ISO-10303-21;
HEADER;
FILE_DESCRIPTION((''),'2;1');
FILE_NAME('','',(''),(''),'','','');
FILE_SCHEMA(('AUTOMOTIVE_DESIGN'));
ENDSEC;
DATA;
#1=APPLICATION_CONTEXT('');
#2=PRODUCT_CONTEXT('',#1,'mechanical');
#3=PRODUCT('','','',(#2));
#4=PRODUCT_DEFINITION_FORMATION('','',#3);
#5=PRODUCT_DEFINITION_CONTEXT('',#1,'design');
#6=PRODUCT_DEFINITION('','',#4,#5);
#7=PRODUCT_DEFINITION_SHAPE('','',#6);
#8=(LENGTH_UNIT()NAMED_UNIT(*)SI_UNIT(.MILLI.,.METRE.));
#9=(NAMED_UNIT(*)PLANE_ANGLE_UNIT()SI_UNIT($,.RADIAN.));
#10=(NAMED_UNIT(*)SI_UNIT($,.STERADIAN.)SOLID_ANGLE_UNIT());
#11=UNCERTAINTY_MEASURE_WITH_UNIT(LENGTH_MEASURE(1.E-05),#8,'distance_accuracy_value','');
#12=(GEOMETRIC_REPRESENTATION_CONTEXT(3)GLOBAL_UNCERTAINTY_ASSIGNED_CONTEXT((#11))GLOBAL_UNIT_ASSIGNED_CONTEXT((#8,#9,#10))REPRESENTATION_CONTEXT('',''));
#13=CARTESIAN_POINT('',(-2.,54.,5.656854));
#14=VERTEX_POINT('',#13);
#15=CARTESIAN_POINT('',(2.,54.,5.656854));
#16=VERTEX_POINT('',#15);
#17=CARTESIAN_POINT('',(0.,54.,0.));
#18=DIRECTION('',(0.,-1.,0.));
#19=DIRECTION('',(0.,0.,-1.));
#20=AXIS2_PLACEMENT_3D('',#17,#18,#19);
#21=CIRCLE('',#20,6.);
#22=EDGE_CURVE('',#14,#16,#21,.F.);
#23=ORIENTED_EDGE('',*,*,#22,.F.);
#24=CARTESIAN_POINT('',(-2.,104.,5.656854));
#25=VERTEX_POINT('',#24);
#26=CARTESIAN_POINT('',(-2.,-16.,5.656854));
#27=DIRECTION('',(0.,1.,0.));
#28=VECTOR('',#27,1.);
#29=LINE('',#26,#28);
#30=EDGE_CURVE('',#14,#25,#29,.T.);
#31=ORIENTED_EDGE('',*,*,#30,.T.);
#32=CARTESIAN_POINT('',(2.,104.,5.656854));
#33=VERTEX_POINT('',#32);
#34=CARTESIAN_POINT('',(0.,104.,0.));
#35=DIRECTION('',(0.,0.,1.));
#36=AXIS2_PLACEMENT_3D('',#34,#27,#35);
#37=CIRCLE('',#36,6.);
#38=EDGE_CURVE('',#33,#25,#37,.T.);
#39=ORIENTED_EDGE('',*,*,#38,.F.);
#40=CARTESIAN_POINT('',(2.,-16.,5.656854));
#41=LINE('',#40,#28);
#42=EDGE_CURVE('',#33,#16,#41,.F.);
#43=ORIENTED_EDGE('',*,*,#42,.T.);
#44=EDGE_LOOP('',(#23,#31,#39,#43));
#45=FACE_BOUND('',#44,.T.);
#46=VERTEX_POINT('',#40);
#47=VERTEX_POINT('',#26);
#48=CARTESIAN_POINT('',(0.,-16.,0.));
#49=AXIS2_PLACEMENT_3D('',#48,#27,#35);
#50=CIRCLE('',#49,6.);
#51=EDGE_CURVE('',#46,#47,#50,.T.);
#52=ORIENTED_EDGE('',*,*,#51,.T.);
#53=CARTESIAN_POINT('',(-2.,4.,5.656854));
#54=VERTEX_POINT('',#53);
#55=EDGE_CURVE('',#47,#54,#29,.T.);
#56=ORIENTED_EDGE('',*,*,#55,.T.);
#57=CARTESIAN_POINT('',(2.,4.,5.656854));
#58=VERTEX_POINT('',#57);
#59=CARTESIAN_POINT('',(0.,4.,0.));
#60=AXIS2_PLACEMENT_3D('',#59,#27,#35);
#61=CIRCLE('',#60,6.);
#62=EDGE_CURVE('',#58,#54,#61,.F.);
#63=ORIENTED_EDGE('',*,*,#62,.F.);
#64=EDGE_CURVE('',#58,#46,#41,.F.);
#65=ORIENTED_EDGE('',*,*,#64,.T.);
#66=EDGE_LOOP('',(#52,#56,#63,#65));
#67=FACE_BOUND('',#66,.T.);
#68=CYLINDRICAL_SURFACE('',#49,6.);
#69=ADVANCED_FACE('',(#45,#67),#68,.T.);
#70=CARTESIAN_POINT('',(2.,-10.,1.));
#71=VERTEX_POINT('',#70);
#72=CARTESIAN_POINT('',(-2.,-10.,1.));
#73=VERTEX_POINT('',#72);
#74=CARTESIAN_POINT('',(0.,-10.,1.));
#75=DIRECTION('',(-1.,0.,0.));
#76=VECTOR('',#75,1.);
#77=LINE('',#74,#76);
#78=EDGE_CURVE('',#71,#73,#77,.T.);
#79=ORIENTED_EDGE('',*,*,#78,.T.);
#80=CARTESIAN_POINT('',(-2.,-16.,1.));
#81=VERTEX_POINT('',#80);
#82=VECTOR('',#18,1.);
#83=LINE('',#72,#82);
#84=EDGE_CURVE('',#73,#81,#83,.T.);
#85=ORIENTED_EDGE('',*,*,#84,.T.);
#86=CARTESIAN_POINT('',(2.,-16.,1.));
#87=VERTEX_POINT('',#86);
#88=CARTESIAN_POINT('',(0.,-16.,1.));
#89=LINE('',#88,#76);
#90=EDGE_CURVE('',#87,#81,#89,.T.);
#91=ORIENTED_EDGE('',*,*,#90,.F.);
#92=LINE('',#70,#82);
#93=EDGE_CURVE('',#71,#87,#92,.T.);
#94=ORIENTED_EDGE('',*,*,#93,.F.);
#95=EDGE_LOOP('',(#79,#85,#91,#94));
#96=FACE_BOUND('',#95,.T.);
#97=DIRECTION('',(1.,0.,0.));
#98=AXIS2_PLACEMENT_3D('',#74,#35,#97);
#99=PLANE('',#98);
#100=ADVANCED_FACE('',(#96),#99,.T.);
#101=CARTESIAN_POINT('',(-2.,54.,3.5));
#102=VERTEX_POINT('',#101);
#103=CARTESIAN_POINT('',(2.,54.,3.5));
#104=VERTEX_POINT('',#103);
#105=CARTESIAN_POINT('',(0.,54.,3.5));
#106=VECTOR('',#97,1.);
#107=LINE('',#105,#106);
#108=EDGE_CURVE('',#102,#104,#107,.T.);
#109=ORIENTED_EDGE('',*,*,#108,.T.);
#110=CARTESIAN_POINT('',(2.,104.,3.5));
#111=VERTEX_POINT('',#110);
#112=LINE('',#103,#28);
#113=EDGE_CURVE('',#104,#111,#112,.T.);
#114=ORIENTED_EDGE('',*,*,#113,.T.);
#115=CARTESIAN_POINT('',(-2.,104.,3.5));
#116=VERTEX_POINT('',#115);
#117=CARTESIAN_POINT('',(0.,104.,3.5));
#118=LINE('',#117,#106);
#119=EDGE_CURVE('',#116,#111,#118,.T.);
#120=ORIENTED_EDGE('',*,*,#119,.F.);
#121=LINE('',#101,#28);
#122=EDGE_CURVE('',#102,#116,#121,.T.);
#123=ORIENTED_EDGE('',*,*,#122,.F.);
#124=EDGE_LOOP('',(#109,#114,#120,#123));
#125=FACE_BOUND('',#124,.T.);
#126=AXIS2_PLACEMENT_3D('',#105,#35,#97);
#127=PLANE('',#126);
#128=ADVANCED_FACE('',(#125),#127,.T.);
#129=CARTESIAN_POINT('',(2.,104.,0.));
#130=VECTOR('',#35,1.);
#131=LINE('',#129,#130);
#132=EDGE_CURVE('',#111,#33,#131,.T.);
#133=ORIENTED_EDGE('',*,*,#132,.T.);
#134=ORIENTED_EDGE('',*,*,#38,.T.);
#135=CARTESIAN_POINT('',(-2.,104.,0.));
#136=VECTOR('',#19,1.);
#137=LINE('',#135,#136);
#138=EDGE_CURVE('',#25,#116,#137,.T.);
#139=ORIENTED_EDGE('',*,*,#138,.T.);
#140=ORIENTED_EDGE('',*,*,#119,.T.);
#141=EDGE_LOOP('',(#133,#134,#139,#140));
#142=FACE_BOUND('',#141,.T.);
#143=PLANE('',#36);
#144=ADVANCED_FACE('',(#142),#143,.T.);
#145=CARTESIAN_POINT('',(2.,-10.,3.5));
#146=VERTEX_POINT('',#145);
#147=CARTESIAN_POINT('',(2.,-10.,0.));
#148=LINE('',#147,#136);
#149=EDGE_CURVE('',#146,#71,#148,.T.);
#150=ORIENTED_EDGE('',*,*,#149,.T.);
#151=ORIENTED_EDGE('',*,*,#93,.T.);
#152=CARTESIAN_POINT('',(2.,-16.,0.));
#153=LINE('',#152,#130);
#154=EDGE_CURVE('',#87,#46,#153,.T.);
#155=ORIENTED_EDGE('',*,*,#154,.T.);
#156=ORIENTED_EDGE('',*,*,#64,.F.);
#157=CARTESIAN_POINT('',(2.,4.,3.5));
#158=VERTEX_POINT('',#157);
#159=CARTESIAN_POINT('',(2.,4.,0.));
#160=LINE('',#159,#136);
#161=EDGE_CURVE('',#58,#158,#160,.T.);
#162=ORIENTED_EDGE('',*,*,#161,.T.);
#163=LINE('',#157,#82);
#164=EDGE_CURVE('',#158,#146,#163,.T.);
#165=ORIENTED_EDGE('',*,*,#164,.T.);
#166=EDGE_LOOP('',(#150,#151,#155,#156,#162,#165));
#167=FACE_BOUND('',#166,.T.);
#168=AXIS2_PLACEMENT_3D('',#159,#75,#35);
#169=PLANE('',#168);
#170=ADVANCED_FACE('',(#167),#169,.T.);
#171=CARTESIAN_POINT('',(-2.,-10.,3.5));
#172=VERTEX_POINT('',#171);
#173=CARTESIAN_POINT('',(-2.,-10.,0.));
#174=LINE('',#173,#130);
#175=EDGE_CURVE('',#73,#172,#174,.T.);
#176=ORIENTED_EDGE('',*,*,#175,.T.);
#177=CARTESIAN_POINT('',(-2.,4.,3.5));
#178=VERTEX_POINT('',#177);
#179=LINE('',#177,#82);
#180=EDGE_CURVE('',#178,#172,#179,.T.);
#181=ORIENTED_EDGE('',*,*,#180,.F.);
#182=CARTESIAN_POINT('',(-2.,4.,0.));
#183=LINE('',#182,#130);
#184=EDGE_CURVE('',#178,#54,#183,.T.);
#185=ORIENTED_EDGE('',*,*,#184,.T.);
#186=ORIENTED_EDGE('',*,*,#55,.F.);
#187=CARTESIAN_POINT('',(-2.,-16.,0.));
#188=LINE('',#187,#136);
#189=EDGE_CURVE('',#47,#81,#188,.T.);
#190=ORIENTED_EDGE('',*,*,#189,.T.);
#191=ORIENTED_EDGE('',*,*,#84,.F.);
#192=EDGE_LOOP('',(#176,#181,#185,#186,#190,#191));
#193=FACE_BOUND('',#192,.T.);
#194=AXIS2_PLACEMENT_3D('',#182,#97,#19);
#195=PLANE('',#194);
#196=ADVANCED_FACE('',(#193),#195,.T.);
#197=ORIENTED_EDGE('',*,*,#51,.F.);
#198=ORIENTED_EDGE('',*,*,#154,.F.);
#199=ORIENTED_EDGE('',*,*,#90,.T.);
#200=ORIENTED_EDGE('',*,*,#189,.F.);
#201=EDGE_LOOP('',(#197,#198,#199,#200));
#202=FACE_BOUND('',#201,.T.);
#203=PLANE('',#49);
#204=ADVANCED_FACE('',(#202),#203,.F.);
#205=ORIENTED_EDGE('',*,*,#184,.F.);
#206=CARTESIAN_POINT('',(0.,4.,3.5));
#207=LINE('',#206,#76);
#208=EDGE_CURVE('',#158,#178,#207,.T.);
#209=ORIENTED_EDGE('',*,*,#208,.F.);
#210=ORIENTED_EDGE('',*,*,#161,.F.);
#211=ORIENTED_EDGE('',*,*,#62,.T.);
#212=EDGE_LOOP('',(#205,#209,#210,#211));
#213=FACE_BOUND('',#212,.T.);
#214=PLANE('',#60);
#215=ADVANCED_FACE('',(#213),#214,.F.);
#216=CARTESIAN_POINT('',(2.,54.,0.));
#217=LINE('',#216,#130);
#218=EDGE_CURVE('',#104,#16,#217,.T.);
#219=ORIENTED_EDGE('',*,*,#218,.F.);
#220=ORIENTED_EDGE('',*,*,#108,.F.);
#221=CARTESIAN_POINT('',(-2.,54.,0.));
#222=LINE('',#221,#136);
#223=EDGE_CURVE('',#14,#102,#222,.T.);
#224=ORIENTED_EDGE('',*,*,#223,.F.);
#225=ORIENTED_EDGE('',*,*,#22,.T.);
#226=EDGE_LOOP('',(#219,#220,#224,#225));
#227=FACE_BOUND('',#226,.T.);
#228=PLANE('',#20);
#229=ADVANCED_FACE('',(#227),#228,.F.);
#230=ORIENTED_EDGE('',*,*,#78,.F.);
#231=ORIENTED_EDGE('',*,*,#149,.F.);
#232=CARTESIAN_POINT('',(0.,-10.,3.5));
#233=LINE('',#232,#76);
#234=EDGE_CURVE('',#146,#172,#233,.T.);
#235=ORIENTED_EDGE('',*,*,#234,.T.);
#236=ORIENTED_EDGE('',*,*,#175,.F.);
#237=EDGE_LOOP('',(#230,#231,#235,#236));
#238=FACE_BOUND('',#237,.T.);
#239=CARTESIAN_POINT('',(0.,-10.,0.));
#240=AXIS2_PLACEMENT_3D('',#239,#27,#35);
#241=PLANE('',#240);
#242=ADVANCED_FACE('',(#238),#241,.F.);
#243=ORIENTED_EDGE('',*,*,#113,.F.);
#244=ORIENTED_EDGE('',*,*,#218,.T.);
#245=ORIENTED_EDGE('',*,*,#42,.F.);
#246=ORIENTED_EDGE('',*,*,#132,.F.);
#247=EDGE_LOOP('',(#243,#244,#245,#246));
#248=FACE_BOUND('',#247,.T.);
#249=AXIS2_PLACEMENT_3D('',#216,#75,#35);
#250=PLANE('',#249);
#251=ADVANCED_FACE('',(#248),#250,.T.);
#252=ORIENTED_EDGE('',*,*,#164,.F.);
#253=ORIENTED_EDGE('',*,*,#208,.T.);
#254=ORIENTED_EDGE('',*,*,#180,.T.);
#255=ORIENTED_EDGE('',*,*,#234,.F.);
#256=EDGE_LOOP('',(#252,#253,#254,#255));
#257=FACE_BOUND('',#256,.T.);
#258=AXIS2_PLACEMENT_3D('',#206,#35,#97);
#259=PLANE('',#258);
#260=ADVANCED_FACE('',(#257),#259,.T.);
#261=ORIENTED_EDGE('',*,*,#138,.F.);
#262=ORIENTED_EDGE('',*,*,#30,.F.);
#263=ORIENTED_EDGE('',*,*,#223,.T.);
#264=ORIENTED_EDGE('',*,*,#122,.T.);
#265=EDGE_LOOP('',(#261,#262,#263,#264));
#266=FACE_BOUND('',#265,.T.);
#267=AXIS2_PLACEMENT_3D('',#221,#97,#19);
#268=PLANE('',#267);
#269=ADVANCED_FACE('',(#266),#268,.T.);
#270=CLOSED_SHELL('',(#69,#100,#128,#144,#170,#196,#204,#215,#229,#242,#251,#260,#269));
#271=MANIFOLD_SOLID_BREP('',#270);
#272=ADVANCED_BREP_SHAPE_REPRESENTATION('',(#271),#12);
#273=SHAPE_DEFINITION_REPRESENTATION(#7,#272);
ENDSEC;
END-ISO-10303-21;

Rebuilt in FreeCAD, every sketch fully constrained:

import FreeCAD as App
import Part
import Sketcher
from FreeCAD import Vector


def add_polygon(sketch, points):
    """Adds a closed chain of lines whose ends are joined by coincident constraints."""
    first, n = sketch.GeometryCount, len(points)
    for a, b in zip(points, points[1:] + points[:1]):
        sketch.addGeometry(Part.LineSegment(App.Vector(*a, 0), App.Vector(*b, 0)), False)
    for i in range(n):
        sketch.addConstraint(Sketcher.Constraint("Coincident", first + i, 2, first + (i + 1) % n, 1))

doc = App.newDocument("Part")
body = doc.addObject("PartDesign::Body", "Body")

# Sketch on XZ plane
sketch1 = body.newObject("Sketcher::SketchObject", "Sketch")
sketch1.AttachmentSupport = (doc.getObject("XZ_Plane"), [""])
sketch1.MapMode = "FlatFace"
sketch1.addGeometry(Part.Circle(Vector(0, 0, 0), Vector(0, 0, 1), 6), False)
sketch1.addConstraint([
    Sketcher.Constraint("Coincident", 0, 3, -1, 1),
    Sketcher.Constraint("Diameter", 0, 12.0),
])
pad1 = body.newObject("PartDesign::Pad", "Pad")
pad1.Profile = sketch1
pad1.Type = "TwoLengths"
pad1.Length = 104
pad1.Length2 = 16
pad1.Reversed = True

# Sketch on XZ plane
sketch2 = body.newObject("Sketcher::SketchObject", "Sketch001")
sketch2.AttachmentSupport = (doc.getObject("XZ_Plane"), [""])
sketch2.MapMode = "FlatFace"
sketch2.AttachmentOffset = App.Placement(Vector(0, 0, 16), App.Rotation())
add_polygon(sketch2, [(-2, 3.5), (-2, 8.5), (2, 8.5), (2, 3.5)])  # lines 0-3
sketch2.addConstraint([
    Sketcher.Constraint("Vertical", 0),
    Sketcher.Constraint("Horizontal", 1),
    Sketcher.Constraint("Vertical", 2),
    Sketcher.Constraint("Horizontal", 3),
    Sketcher.Constraint("DistanceX", 1, 1, 1, 2, 4.0),
    Sketcher.Constraint("DistanceY", 0, 1, 0, 2, 5.0),
    Sketcher.Constraint("DistanceX", 0, 2, -1, 1, 2.0),
    Sketcher.Constraint("DistanceY", -1, 1, 0, 2, 8.5),
])
pocket1 = body.newObject("PartDesign::Pocket", "Pocket")
pocket1.Profile = sketch2
pocket1.Type = "TwoLengths"
pocket1.Length = 20
pocket1.Length2 = 0.0001

# Sketch on XZ plane
sketch3 = body.newObject("Sketcher::SketchObject", "Sketch002")
sketch3.AttachmentSupport = (doc.getObject("XZ_Plane"), [""])
sketch3.MapMode = "FlatFace"
sketch3.AttachmentOffset = App.Placement(Vector(0, 0, -104), App.Rotation())
add_polygon(sketch3, [(-2, 3.5), (-2, 8.5), (2, 8.5), (2, 3.5)])  # lines 0-3
sketch3.addConstraint([
    Sketcher.Constraint("Vertical", 0),
    Sketcher.Constraint("Horizontal", 1),
    Sketcher.Constraint("Vertical", 2),
    Sketcher.Constraint("Horizontal", 3),
    Sketcher.Constraint("DistanceX", 1, 1, 1, 2, 4.0),
    Sketcher.Constraint("DistanceY", 0, 1, 0, 2, 5.0),
    Sketcher.Constraint("DistanceX", 0, 2, -1, 1, 2.0),
    Sketcher.Constraint("DistanceY", -1, 1, 0, 2, 8.5),
])
pocket2 = body.newObject("PartDesign::Pocket", "Pocket001")
pocket2.Profile = sketch3
pocket2.Length = 50
pocket2.Reversed = True

# Sketch on XZ plane
sketch4 = body.newObject("Sketcher::SketchObject", "Sketch003")
sketch4.AttachmentSupport = (doc.getObject("XZ_Plane"), [""])
sketch4.MapMode = "FlatFace"
sketch4.AttachmentOffset = App.Placement(Vector(0, 0, 16), App.Rotation())
add_polygon(sketch4, [(-2, 1), (-2, 11), (2, 11), (2, 1)])  # lines 0-3
sketch4.addConstraint([
    Sketcher.Constraint("Vertical", 0),
    Sketcher.Constraint("Horizontal", 1),
    Sketcher.Constraint("Vertical", 2),
    Sketcher.Constraint("Horizontal", 3),
    Sketcher.Constraint("DistanceX", 1, 1, 1, 2, 4.0),
    Sketcher.Constraint("DistanceY", 0, 1, 0, 2, 10.0),
    Sketcher.Constraint("DistanceX", 0, 2, -1, 1, 2.0),
    Sketcher.Constraint("DistanceY", -1, 1, 0, 2, 11.0),
])
pocket3 = body.newObject("PartDesign::Pocket", "Pocket002")
pocket3.Profile = sketch4
pocket3.Length = 6

doc.recompute()
